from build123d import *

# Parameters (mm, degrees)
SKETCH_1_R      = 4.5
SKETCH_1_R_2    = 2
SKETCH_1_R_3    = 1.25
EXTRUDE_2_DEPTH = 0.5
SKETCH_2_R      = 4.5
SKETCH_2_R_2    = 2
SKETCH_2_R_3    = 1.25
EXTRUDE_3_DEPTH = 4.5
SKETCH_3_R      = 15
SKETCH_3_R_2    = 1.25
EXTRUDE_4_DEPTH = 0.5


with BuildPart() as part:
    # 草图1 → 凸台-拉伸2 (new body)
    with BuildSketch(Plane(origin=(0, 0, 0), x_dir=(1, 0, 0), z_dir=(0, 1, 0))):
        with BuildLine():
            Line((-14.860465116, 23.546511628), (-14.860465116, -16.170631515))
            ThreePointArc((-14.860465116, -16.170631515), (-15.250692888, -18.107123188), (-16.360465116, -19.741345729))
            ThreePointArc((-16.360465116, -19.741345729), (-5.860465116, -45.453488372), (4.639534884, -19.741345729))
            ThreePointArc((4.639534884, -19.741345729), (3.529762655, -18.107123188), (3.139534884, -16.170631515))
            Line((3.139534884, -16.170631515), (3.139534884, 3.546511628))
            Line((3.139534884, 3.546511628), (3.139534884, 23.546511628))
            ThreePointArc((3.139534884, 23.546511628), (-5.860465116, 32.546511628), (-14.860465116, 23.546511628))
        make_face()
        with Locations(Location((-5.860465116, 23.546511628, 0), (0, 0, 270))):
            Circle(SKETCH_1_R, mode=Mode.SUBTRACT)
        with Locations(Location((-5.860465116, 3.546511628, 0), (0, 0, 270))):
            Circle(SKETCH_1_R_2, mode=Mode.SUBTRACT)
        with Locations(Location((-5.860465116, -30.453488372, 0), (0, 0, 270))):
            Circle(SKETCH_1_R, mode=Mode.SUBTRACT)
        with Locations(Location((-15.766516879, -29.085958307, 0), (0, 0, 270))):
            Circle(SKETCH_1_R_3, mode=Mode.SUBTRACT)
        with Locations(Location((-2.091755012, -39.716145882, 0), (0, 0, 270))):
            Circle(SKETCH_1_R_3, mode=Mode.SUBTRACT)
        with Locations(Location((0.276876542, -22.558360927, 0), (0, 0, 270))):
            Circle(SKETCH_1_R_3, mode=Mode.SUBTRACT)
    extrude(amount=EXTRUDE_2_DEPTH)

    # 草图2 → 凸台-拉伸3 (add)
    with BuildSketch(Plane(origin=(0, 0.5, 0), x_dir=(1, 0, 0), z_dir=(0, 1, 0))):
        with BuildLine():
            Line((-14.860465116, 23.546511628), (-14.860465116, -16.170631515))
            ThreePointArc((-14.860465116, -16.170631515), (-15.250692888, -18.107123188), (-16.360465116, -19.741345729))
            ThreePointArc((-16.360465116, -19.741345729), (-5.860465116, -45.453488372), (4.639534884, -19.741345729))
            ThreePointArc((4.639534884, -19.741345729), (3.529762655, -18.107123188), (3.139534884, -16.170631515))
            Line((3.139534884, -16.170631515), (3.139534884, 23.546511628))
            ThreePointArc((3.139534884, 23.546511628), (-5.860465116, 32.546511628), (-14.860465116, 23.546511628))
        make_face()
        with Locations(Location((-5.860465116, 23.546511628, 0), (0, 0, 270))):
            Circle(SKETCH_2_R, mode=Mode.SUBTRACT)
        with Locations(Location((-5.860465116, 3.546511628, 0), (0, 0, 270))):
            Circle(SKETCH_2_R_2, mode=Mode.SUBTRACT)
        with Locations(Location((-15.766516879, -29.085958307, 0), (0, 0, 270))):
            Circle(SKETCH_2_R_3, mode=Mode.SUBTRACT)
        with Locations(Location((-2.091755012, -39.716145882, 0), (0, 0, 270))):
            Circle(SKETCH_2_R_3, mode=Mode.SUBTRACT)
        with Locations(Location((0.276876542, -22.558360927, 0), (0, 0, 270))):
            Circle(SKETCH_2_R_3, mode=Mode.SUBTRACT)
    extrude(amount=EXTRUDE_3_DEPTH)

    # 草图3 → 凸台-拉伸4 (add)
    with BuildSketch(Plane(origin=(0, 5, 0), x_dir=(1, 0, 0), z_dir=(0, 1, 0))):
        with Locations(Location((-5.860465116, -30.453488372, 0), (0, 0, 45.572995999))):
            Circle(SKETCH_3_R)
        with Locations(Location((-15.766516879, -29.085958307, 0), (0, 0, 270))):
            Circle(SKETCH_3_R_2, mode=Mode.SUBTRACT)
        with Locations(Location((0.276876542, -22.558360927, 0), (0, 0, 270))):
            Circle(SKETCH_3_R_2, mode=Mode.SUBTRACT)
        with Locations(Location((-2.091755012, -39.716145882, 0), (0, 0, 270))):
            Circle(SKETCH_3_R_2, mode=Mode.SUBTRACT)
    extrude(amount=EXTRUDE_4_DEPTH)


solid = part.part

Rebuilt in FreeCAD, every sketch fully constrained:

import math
import FreeCAD as App
import Part
import Sketcher
from FreeCAD import Vector
Q = App.Units.Quantity

doc = App.newDocument("Part")
params = doc.addObject("Spreadsheet::Sheet", "Params")
for row, (alias, value) in enumerate([
    ("sketch1_diameter", "9 mm"),
    ("sketch1_diameter2", "4 mm"),
    ("sketch1_radius", "5 mm"),
    ("sketch1_radius2", "15 mm"),
    ("sketch1_radius3", "9 mm"),
    ("pad1_length", "0.5 mm"),
    ("sketch2_diameter", "4 mm"),
    ("sketch2_diameter2", "9 mm"),
    ("sketch2_radius", "5 mm"),
    ("sketch2_radius2", "15 mm"),
    ("sketch2_radius3", "9 mm"),
    ("pad2_length", "4.5 mm"),
    ("sketch3_diameter", "30 mm"),
    ("sketch3_diameter2", "2.5 mm"),
    ("pad3_length", "0.5 mm"),
], start=1):
    params.set(f"A{row}", alias)
    params.set(f"B{row}", "=" + value)
    params.setAlias(f"B{row}", alias)

body = doc.addObject("PartDesign::Body", "Body")

# Sketch on XZ plane
sketch1 = body.newObject("Sketcher::SketchObject", "Sketch")
sketch1.AttachmentSupport = (doc.getObject("XZ_Plane"), [""])
sketch1.MapMode = "FlatFace"
sketch1.addGeometry(Part.LineSegment(Vector(-14.9, -23.5, 0), Vector(-14.9, 16.2, 0)), False)
sketch1.addGeometry(Part.ArcOfCircle(Part.Circle(Vector(-19.9, 16.2, 0), Vector(0, 0, 1), 5), math.radians(0), math.radians(46)), False)
sketch1.addGeometry(Part.ArcOfCircle(Part.Circle(Vector(-5.9, 30.5, 0), Vector(0, 0, 1), 15), math.radians(-46), math.radians(226)), False)
sketch1.addGeometry(Part.ArcOfCircle(Part.Circle(Vector(8.1, 16.2, 0), Vector(0, 0, 1), 5), math.radians(134), math.radians(180)), False)
sketch1.addGeometry(Part.LineSegment(Vector(3.1, 16.2, 0), Vector(3.1, -23.5, 0)), False)
sketch1.addGeometry(Part.ArcOfCircle(Part.Circle(Vector(-5.9, -23.5, 0), Vector(0, 0, 1), 9), math.radians(180), math.radians(360)), False)
sketch1.addGeometry(Part.Circle(Vector(-15.8, 29.1, 0), Vector(0, 0, 1), 1.2), False)
sketch1.addGeometry(Part.Circle(Vector(-5.9, 30.5, 0), Vector(0, 0, 1), 4.5), False)
sketch1.addGeometry(Part.Circle(Vector(-2.1, 39.7, 0), Vector(0, 0, 1), 1.2), False)
sketch1.addGeometry(Part.Circle(Vector(0.3, 22.6, 0), Vector(0, 0, 1), 1.2), False)
sketch1.addGeometry(Part.Circle(Vector(-5.9, -3.5, 0), Vector(0, 0, 1), 2), False)
sketch1.addGeometry(Part.Circle(Vector(-5.9, -23.5, 0), Vector(0, 0, 1), 4.5), False)
sketch1.addConstraint(Sketcher.Constraint("Tangent", 0, 2, 1, 1))
sketch1.addConstraint(Sketcher.Constraint("Tangent", 1, 2, 2, 2))
sketch1.addConstraint(Sketcher.Constraint("Tangent", 2, 1, 3, 1))
sketch1.addConstraint(Sketcher.Constraint("Tangent", 3, 2, 4, 1))
sketch1.addConstraint(Sketcher.Constraint("Tangent", 4, 2, 5, 2))
sketch1.addConstraint(Sketcher.Constraint("Tangent", 5, 1, 0, 1))
sketch1.addConstraint(Sketcher.Constraint("Vertical", 0))
sketch1.addConstraint(Sketcher.Constraint("Vertical", 4))
sketch1.addConstraint(Sketcher.Constraint("Coincident", 7, 3, 2, 3))
sketch1.addConstraint(Sketcher.Constraint("Coincident", 11, 3, 5, 3))
sketch1.addConstraint(Sketcher.Constraint("Equal", 1, 3))
sketch1.addConstraint(Sketcher.Constraint("Equal", 6, 8))
sketch1.addConstraint(Sketcher.Constraint("Equal", 8, 9))
sketch1.addConstraint(Sketcher.Constraint("Equal", 7, 11))
sketch1.addConstraint(Sketcher.Constraint("Horizontal", 1, 3, 3, 3))
sketch1.addConstraint(Sketcher.Constraint("Vertical", 7, 3, 10, 3))
sketch1.addConstraint(Sketcher.Constraint("Diameter", 7, Q("9 mm")))
sketch1.addConstraint(Sketcher.Constraint("Diameter", 10, Q("4 mm")))
sketch1.addConstraint(Sketcher.Constraint("Radius", 1, Q("5 mm")))
sketch1.addConstraint(Sketcher.Constraint("Radius", 2, Q("15 mm")))
sketch1.addConstraint(Sketcher.Constraint("Radius", 5, Q("9 mm")))
sketch1.addConstraint(Sketcher.Constraint("Diameter", 6, Q("2.5 mm")))
sketch1.addConstraint(Sketcher.Constraint("DistanceY", 5, 3, 2, 3, Q("54 mm")))
sketch1.addConstraint(Sketcher.Constraint("DistanceY", 5, 3, 10, 3, Q("20 mm")))
sketch1.addConstraint(Sketcher.Constraint("DistanceY", -1, 1, 1, 3, Q("16.170632 mm")))
sketch1.addConstraint(Sketcher.Constraint("DistanceY", -1, 1, 6, 3, Q("29.085958 mm")))
sketch1.addConstraint(Sketcher.Constraint("DistanceY", -1, 1, 9, 3, Q("22.558361 mm")))
sketch1.addConstraint(Sketcher.Constraint("DistanceX", 6, 3, 2, 3, Q("9.906052 mm")))
sketch1.addConstraint(Sketcher.Constraint("DistanceX", 2, 3, 8, 3, Q("3.76871 mm")))
sketch1.addConstraint(Sketcher.Constraint("DistanceX", 2, 3, 9, 3, Q("6.137342 mm")))
sketch1.addConstraint(Sketcher.Constraint("DistanceX", 1, 3, -1, 1, Q("19.860465 mm")))
sketch1.addConstraint(Sketcher.Constraint("DistanceY", -1, 1, 8, 3, Q("39.716146 mm")))
sketch1.setExpression("Constraints[16]", "Params.sketch1_diameter")
sketch1.setExpression("Constraints[17]", "Params.sketch1_diameter2")
sketch1.setExpression("Constraints[18]", "Params.sketch1_radius")
sketch1.setExpression("Constraints[19]", "Params.sketch1_radius2")
sketch1.setExpression("Constraints[20]", "Params.sketch1_radius3")
pad1 = body.newObject("PartDesign::Pad", "Pad")
pad1.Profile = sketch1
pad1.setExpression("Length", "Params.pad1_length")
pad1.Reversed = True

# Sketch on XZ plane
sketch2 = body.newObject("Sketcher::SketchObject", "Sketch001")
sketch2.AttachmentSupport = (doc.getObject("XZ_Plane"), [""])
sketch2.MapMode = "FlatFace"
sketch2.AttachmentOffset = App.Placement(Vector(0, 0, -0.5), App.Rotation())
sketch2.addGeometry(Part.LineSegment(Vector(-14.9, -23.5, 0), Vector(-14.9, 16.2, 0)), False)
sketch2.addGeometry(Part.ArcOfCircle(Part.Circle(Vector(-19.9, 16.2, 0), Vector(0, 0, 1), 5), math.radians(0), math.radians(46)), False)
sketch2.addGeometry(Part.ArcOfCircle(Part.Circle(Vector(-5.9, 30.5, 0), Vector(0, 0, 1), 15), math.radians(-46), math.radians(226)), False)
sketch2.addGeometry(Part.ArcOfCircle(Part.Circle(Vector(8.1, 16.2, 0), Vector(0, 0, 1), 5), math.radians(134), math.radians(180)), False)
sketch2.addGeometry(Part.LineSegment(Vector(3.1, 16.2, 0), Vector(3.1, -23.5, 0)), False)
sketch2.addGeometry(Part.ArcOfCircle(Part.Circle(Vector(-5.9, -23.5, 0), Vector(0, 0, 1), 9), math.radians(180), math.radians(360)), False)
sketch2.addGeometry(Part.Circle(Vector(-15.8, 29.1, 0), Vector(0, 0, 1), 1.2), False)
sketch2.addGeometry(Part.Circle(Vector(-2.1, 39.7, 0), Vector(0, 0, 1), 1.2), False)
sketch2.addGeometry(Part.Circle(Vector(0.3, 22.6, 0), Vector(0, 0, 1), 1.2), False)
sketch2.addGeometry(Part.Circle(Vector(-5.9, -3.5, 0), Vector(0, 0, 1), 2), False)
sketch2.addGeometry(Part.Circle(Vector(-5.9, -23.5, 0), Vector(0, 0, 1), 4.5), False)
sketch2.addConstraint(Sketcher.Constraint("Tangent", 0, 2, 1, 1))
sketch2.addConstraint(Sketcher.Constraint("Tangent", 1, 2, 2, 2))
sketch2.addConstraint(Sketcher.Constraint("Tangent", 2, 1, 3, 1))
sketch2.addConstraint(Sketcher.Constraint("Tangent", 3, 2, 4, 1))
sketch2.addConstraint(Sketcher.Constraint("Tangent", 4, 2, 5, 2))
sketch2.addConstraint(Sketcher.Constraint("Tangent", 5, 1, 0, 1))
sketch2.addConstraint(Sketcher.Constraint("Vertical", 0))
sketch2.addConstraint(Sketcher.Constraint("Vertical", 4))
sketch2.addConstraint(Sketcher.Constraint("Coincident", 10, 3, 5, 3))
sketch2.addConstraint(Sketcher.Constraint("Equal", 1, 3))
sketch2.addConstraint(Sketcher.Constraint("Equal", 6, 7))
sketch2.addConstraint(Sketcher.Constraint("Equal", 7, 8))
sketch2.addConstraint(Sketcher.Constraint("Horizontal", 1, 3, 3, 3))
sketch2.addConstraint(Sketcher.Constraint("Vertical", 5, 3, 9, 3))
sketch2.addConstraint(Sketcher.Constraint("Diameter", 9, Q("4 mm")))
sketch2.addConstraint(Sketcher.Constraint("Diameter", 10, Q("9 mm")))
sketch2.addConstraint(Sketcher.Constraint("Radius", 1, Q("5 mm")))
sketch2.addConstraint(Sketcher.Constraint("Radius", 2, Q("15 mm")))
sketch2.addConstraint(Sketcher.Constraint("Radius", 5, Q("9 mm")))
sketch2.addConstraint(Sketcher.Constraint("Diameter", 6, Q("2.5 mm")))
sketch2.addConstraint(Sketcher.Constraint("DistanceY", 5, 3, 2, 3, Q("54 mm")))
sketch2.addConstraint(Sketcher.Constraint("DistanceY", 5, 3, 9, 3, Q("20 mm")))
sketch2.addConstraint(Sketcher.Constraint("DistanceY", -1, 1, 1, 3, Q("16.170632 mm")))
sketch2.addConstraint(Sketcher.Constraint("DistanceY", -1, 1, 6, 3, Q("29.085958 mm")))
sketch2.addConstraint(Sketcher.Constraint("DistanceY", -1, 1, 8, 3, Q("22.558361 mm")))
sketch2.addConstraint(Sketcher.Constraint("DistanceX", 6, 3, 2, 3, Q("9.906052 mm")))
sketch2.addConstraint(Sketcher.Constraint("DistanceX", 2, 3, 7, 3, Q("3.76871 mm")))
sketch2.addConstraint(Sketcher.Constraint("DistanceX", 2, 3, 8, 3, Q("6.137342 mm")))
sketch2.addConstraint(Sketcher.Constraint("DistanceX", 1, 3, -1, 1, Q("19.860465 mm")))
sketch2.addConstraint(Sketcher.Constraint("DistanceY", -1, 1, 7, 3, Q("39.716146 mm")))
sketch2.setExpression("Constraints[14]", "Params.sketch2_diameter")
sketch2.setExpression("Constraints[15]", "Params.sketch2_diameter2")
sketch2.setExpression("Constraints[16]", "Params.sketch2_radius")
sketch2.setExpression("Constraints[17]", "Params.sketch2_radius2")
sketch2.setExpression("Constraints[18]", "Params.sketch2_radius3")
pad2 = body.newObject("PartDesign::Pad", "Pad001")
pad2.Profile = sketch2
pad2.setExpression("Length", "Params.pad2_length")
pad2.Reversed = True

# Sketch on XZ plane
sketch3 = body.newObject("Sketcher::SketchObject", "Sketch002")
sketch3.AttachmentSupport = (doc.getObject("XZ_Plane"), [""])
sketch3.MapMode = "FlatFace"
sketch3.AttachmentOffset = App.Placement(Vector(0, 0, -5), App.Rotation())
sketch3.addGeometry(Part.Circle(Vector(-5.9, 30.5, 0), Vector(0, 0, 1), 15), False)
sketch3.addGeometry(Part.Circle(Vector(-2.1, 39.7, 0), Vector(0, 0, 1), 1.2), False)
sketch3.addGeometry(Part.Circle(Vector(-15.8, 29.1, 0), Vector(0, 0, 1), 1.2), False)
sketch3.addGeometry(Part.Circle(Vector(0.3, 22.6, 0), Vector(0, 0, 1), 1.2), False)
sketch3.addConstraint(Sketcher.Constraint("Equal", 1, 2))
sketch3.addConstraint(Sketcher.Constraint("Equal", 2, 3))
sketch3.addConstraint(Sketcher.Constraint("Diameter", 0, Q("30 mm")))
sketch3.addConstraint(Sketcher.Constraint("Diameter", 1, Q("2.5 mm")))
sketch3.addConstraint(Sketcher.Constraint("DistanceY", -1, 1, 0, 3, Q("30.453488 mm")))
sketch3.addConstraint(Sketcher.Constraint("DistanceY", -1, 1, 2, 3, Q("29.085958 mm")))
sketch3.addConstraint(Sketcher.Constraint("DistanceY", -1, 1, 3, 3, Q("22.558361 mm")))
sketch3.addConstraint(Sketcher.Constraint("DistanceX", 0, 3, 1, 3, Q("3.76871 mm")))
sketch3.addConstraint(Sketcher.Constraint("DistanceX", 2, 3, 0, 3, Q("9.906052 mm")))
sketch3.addConstraint(Sketcher.Constraint("DistanceX", 0, 3, 3, 3, Q("6.137342 mm")))
sketch3.addConstraint(Sketcher.Constraint("DistanceX", 0, 3, -1, 1, Q("5.860465 mm")))
sketch3.addConstraint(Sketcher.Constraint("DistanceY", -1, 1, 1, 3, Q("39.716146 mm")))
sketch3.setExpression("Constraints[2]", "Params.sketch3_diameter")
sketch3.setExpression("Constraints[3]", "Params.sketch3_diameter2")
pad3 = body.newObject("PartDesign::Pad", "Pad002")
pad3.Profile = sketch3
pad3.setExpression("Length", "Params.pad3_length")
pad3.Reversed = True

doc.recompute()
